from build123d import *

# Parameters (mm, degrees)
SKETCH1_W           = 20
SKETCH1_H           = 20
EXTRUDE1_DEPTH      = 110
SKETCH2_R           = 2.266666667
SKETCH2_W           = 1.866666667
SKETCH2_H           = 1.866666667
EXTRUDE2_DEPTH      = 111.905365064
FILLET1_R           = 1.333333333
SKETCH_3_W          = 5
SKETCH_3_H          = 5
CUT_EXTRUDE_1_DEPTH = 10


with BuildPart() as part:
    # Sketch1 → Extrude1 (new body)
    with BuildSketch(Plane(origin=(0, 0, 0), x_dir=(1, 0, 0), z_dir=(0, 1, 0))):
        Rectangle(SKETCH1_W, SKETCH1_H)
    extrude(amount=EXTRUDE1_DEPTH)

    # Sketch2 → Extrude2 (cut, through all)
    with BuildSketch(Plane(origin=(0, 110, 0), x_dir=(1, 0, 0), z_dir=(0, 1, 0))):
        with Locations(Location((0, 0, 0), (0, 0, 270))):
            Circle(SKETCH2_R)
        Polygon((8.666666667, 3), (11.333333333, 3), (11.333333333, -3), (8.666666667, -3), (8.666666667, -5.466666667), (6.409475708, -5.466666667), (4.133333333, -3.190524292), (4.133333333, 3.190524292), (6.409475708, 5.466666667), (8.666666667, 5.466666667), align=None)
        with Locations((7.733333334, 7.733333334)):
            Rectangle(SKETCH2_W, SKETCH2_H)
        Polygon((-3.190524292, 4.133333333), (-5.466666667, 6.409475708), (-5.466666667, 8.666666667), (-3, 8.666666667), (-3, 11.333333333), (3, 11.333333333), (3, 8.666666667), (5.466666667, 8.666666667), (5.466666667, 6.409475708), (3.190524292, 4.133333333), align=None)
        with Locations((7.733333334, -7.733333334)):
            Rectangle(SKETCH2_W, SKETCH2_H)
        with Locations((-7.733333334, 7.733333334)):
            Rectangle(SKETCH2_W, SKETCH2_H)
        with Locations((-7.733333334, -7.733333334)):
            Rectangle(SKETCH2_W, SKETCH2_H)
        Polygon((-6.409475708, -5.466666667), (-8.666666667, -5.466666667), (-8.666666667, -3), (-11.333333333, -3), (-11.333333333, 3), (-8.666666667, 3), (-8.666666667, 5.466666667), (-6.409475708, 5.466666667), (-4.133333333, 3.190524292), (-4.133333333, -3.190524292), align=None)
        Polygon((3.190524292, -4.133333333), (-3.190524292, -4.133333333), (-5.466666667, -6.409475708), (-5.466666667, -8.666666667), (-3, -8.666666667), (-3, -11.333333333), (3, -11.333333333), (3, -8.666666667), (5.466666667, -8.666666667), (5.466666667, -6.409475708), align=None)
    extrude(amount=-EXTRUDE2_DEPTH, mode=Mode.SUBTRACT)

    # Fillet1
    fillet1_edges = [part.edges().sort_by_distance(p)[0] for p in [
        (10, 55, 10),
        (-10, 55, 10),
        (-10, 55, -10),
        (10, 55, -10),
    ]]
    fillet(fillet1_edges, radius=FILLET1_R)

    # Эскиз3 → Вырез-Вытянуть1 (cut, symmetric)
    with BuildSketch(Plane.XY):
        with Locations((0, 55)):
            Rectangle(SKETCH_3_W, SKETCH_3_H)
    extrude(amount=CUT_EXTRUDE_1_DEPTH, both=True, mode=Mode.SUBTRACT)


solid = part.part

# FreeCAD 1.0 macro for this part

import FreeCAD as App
import Part
import Sketcher

V = App.Vector


def edges_at(feature, points):
    """Names of the edges that pass closest to the given points."""
    edges = feature.Shape.Edges
    near = lambda p: min(range(len(edges)), key=lambda i: edges[i].distToShape(Part.Vertex(*p))[0])
    return sorted({f"Edge{near(p) + 1}" for p in points})


def add_polygon(sketch, points):
    """Adds a closed chain of lines whose ends are joined by coincident constraints."""
    first, n = sketch.GeometryCount, len(points)
    for a, b in zip(points, points[1:] + points[:1]):
        sketch.addGeometry(Part.LineSegment(App.Vector(*a, 0), App.Vector(*b, 0)), False)
    for i in range(n):
        sketch.addConstraint(Sketcher.Constraint("Coincident", first + i, 2, first + (i + 1) % n, 1))

doc = App.newDocument("Part")
body = doc.addObject("PartDesign::Body", "Body")

# Sketch on XZ plane
sketch1 = body.newObject("Sketcher::SketchObject", "Sketch")
sketch1.AttachmentSupport = (doc.getObject("XZ_Plane"), [""])
sketch1.MapMode = "FlatFace"
add_polygon(sketch1, [(-10, -10), (-10, 10), (10, 10), (10, -10)])  # lines 0-3
sketch1.addConstraint([
    Sketcher.Constraint("Vertical", 0),
    Sketcher.Constraint("Horizontal", 1),
    Sketcher.Constraint("Vertical", 2),
    Sketcher.Constraint("Horizontal", 3),
    Sketcher.Constraint("Symmetric", 0, 2, 2, 2, -1, 1),
    Sketcher.Constraint("Equal", 3, 0),
    Sketcher.Constraint("DistanceX", 1, 1, 1, 2, 20.0),
])
pad1 = body.newObject("PartDesign::Pad", "Pad")
pad1.Profile = sketch1
pad1.Length = 110
pad1.Reversed = True

# Sketch on XZ plane
sketch2 = body.newObject("Sketcher::SketchObject", "Sketch001")
sketch2.AttachmentSupport = (doc.getObject("XZ_Plane"), [""])
sketch2.MapMode = "FlatFace"
sketch2.AttachmentOffset = App.Placement(V(0, 0, -110), App.Rotation())
sketch2.addGeometry(Part.Circle(V(0, 0, 0), V(0, 0, 1), 2.3), False)  # 0
add_polygon(sketch2, [(11.3, -3), (8.7, -3), (8.7, -5.5), (6.4, -5.5), (4.1, -3.2), (4.1, 3.2), (6.4, 5.5), (8.7, 5.5), (8.7, 3), (11.3, 3)])  # lines 1-10
add_polygon(sketch2, [(6.8, -8.7), (6.8, -6.8), (8.7, -6.8), (8.7, -8.7)])  # lines 11-14
add_polygon(sketch2, [(-5.5, -6.4), (-3.2, -4.1), (3.2, -4.1), (5.5, -6.4), (5.5, -8.7), (3, -8.7), (3, -11.3), (-3, -11.3), (-3, -8.7), (-5.5, -8.7)])  # lines 15-24
add_polygon(sketch2, [(6.8, 6.8), (6.8, 8.7), (8.7, 8.7), (8.7, 6.8)])  # lines 25-28
add_polygon(sketch2, [(-8.7, -8.7), (-8.7, -6.8), (-6.8, -6.8), (-6.8, -8.7)])  # lines 29-32
add_polygon(sketch2, [(-8.7, 6.8), (-8.7, 8.7), (-6.8, 8.7), (-6.8, 6.8)])  # lines 33-36
add_polygon(sketch2, [(-8.7, 5.5), (-6.4, 5.5), (-4.1, 3.2), (-4.1, -3.2), (-6.4, -5.5), (-8.7, -5.5), (-8.7, -3), (-11.3, -3), (-11.3, 3), (-8.7, 3)])  # lines 37-46
add_polygon(sketch2, [(3.2, 4.1), (-3.2, 4.1), (-5.5, 6.4), (-5.5, 8.7), (-3, 8.7), (-3, 11.3), (3, 11.3), (3, 8.7), (5.5, 8.7), (5.5, 6.4)])  # lines 47-56
sketch2.addConstraint([
    Sketcher.Constraint("Horizontal", 1),
    Sketcher.Constraint("Vertical", 2),
    Sketcher.Constraint("Horizontal", 3),
    Sketcher.Constraint("Vertical", 5),
    Sketcher.Constraint("Horizontal", 7),
    Sketcher.Constraint("Vertical", 8),
    Sketcher.Constraint("Horizontal", 9),
    Sketcher.Constraint("Vertical", 10),
    Sketcher.Constraint("Vertical", 11),
    Sketcher.Constraint("Horizontal", 12),
    Sketcher.Constraint("Vertical", 13),
    Sketcher.Constraint("Horizontal", 14),
    Sketcher.Constraint("Horizontal", 16),
    Sketcher.Constraint("Vertical", 18),
    Sketcher.Constraint("Horizontal", 19),
    Sketcher.Constraint("Vertical", 20),
    Sketcher.Constraint("Horizontal", 21),
    Sketcher.Constraint("Vertical", 22),
    Sketcher.Constraint("Horizontal", 23),
    Sketcher.Constraint("Vertical", 24),
    Sketcher.Constraint("Vertical", 25),
    Sketcher.Constraint("Horizontal", 26),
    Sketcher.Constraint("Vertical", 27),
    Sketcher.Constraint("Horizontal", 28),
    Sketcher.Constraint("Vertical", 29),
    Sketcher.Constraint("Horizontal", 30),
    Sketcher.Constraint("Vertical", 31),
    Sketcher.Constraint("Horizontal", 32),
    Sketcher.Constraint("Vertical", 33),
    Sketcher.Constraint("Horizontal", 34),
    Sketcher.Constraint("Vertical", 35),
    Sketcher.Constraint("Horizontal", 36),
    Sketcher.Constraint("Horizontal", 37),
    Sketcher.Constraint("Vertical", 39),
    Sketcher.Constraint("Horizontal", 41),
    Sketcher.Constraint("Vertical", 42),
    Sketcher.Constraint("Horizontal", 43),
    Sketcher.Constraint("Vertical", 44),
    Sketcher.Constraint("Horizontal", 45),
    Sketcher.Constraint("Vertical", 46),
    Sketcher.Constraint("Horizontal", 47),
    Sketcher.Constraint("Vertical", 49),
    Sketcher.Constraint("Horizontal", 50),
    Sketcher.Constraint("Vertical", 51),
    Sketcher.Constraint("Horizontal", 52),
    Sketcher.Constraint("Vertical", 53),
    Sketcher.Constraint("Horizontal", 54),
    Sketcher.Constraint("Vertical", 55),
    Sketcher.Constraint("Coincident", 0, 3, -1, 1),
    Sketcher.Constraint("Symmetric", 27, 2, 29, 2, -1, 1),
    Sketcher.Constraint("Symmetric", 25, 2, 31, 2, -1, 1),
    Sketcher.Constraint("Symmetric", 13, 2, 33, 2, -1, 1),
    Sketcher.Constraint("Symmetric", 11, 2, 35, 2, -1, 1),
    Sketcher.Constraint("Symmetric", 3, 2, 37, 2, -1, 1),
    Sketcher.Constraint("Symmetric", 4, 2, 38, 2, -1, 1),
    Sketcher.Constraint("Symmetric", 6, 2, 40, 2, -1, 1),
    Sketcher.Constraint("Symmetric", 8, 2, 42, 2, -1, 1),
    Sketcher.Constraint("Symmetric", 10, 2, 44, 2, -1, 1),
    Sketcher.Constraint("Symmetric", 16, 2, 47, 2, -1, 1),
    Sketcher.Constraint("Symmetric", 17, 2, 48, 2, -1, 1),
    Sketcher.Constraint("Symmetric", 19, 2, 50, 2, -1, 1),
    Sketcher.Constraint("Symmetric", 21, 2, 52, 2, -1, 1),
    Sketcher.Constraint("Symmetric", 23, 2, 54, 2, -1, 1),
    Sketcher.Constraint("Symmetric", 19, 2, 22, 2, -2),
    Sketcher.Constraint("Symmetric", 17, 2, 24, 2, -2),
    Sketcher.Constraint("Symmetric", 12, 2, 29, 2, -2),
    Sketcher.Constraint("Symmetric", 14, 2, 31, 2, -2),
    Sketcher.Constraint("Symmetric", 6, 2, 37, 2, -2),
    Sketcher.Constraint("Symmetric", 1, 2, 42, 2, -2),
    Sketcher.Constraint("Perpendicular", 4, 6),
    Sketcher.Constraint("Parallel", 6, 15),
    Sketcher.Constraint("Perpendicular", 15, 17),
    Sketcher.Constraint("Perpendicular", 38, 40),
    Sketcher.Constraint("Perpendicular", 48, 56),
    Sketcher.Constraint("Horizontal", 14, 2, 18, 2),
    Sketcher.Constraint("Horizontal", 5, 2, 38, 2),
    Sketcher.Constraint("Horizontal", 48, 2, 55, 2),
    Sketcher.Constraint("Vertical", 8, 2, 12, 2),
    Sketcher.Constraint("Vertical", 42, 2, 45, 2),
    Sketcher.Constraint("Equal", 54, 2),
    Sketcher.Constraint("Equal", 47, 5),
    Sketcher.Constraint("Equal", 52, 10),
    Sketcher.Constraint("Equal", 36, 11),
    Sketcher.Constraint("Equal", 41, 18),
    Sketcher.Constraint("Equal", 45, 20),
    Sketcher.Constraint("DistanceX", 21, 2, 21, 1, 6.0),
    Sketcher.Constraint("DistanceX", -1, 1, 11, 2, 6.8),
    Sketcher.Constraint("DistanceY", 11, 2, -1, 1, 6.8),
    Sketcher.Constraint("DistanceX", 5, 2, 9, 2, 7.2),
    Sketcher.Constraint("DistanceY", 13, 2, 2, 2, 3.2),
    Sketcher.Constraint("DistanceX", 15, 2, 3, 2, 9.6),
    Sketcher.Constraint("Diameter", 0, 4.533333),
    Sketcher.Constraint("DistanceX", 3, 2, 3, 1, 2.257191),
    Sketcher.Constraint("DistanceX", 16, 1, 16, 2, 6.381049),
])
pocket1 = body.newObject("PartDesign::Pocket", "Pocket")
pocket1.Profile = sketch2
pocket1.Type = "ThroughAll"
pocket1.Reversed = True
doc.recompute()

fillet = body.newObject("PartDesign::Fillet", "Fillet")
fillet.Base = (pocket1, edges_at(pocket1, [
    (10, 55, 10),
    (-10, 55, 10),
    (-10, 55, -10),
    (10, 55, -10),
]))
fillet.Radius = 1.333333

# Sketch on XY plane
sketch3 = body.newObject("Sketcher::SketchObject", "Sketch002")
sketch3.AttachmentSupport = (doc.getObject("XY_Plane"), [""])
sketch3.MapMode = "FlatFace"
add_polygon(sketch3, [(-2, 58), (-2, 52), (2, 52), (2, 58)])  # lines 0-3
sketch3.addConstraint([
    Sketcher.Constraint("Vertical", 0),
    Sketcher.Constraint("Horizontal", 1),
    Sketcher.Constraint("Vertical", 2),
    Sketcher.Constraint("Horizontal", 3),
    Sketcher.Constraint("Equal", 3, 0),
    Sketcher.Constraint("DistanceX", 1, 1, 1, 2, 5.0),
    Sketcher.Constraint("DistanceX", 0, 2, -1, 1, 2.5),
    Sketcher.Constraint("DistanceY", -1, 1, 0, 2, 52.5),
])
pocket2 = body.newObject("PartDesign::Pocket", "Pocket001")
pocket2.Profile = sketch3
pocket2.Length = 20
pocket2.Midplane = True

doc.recompute()
